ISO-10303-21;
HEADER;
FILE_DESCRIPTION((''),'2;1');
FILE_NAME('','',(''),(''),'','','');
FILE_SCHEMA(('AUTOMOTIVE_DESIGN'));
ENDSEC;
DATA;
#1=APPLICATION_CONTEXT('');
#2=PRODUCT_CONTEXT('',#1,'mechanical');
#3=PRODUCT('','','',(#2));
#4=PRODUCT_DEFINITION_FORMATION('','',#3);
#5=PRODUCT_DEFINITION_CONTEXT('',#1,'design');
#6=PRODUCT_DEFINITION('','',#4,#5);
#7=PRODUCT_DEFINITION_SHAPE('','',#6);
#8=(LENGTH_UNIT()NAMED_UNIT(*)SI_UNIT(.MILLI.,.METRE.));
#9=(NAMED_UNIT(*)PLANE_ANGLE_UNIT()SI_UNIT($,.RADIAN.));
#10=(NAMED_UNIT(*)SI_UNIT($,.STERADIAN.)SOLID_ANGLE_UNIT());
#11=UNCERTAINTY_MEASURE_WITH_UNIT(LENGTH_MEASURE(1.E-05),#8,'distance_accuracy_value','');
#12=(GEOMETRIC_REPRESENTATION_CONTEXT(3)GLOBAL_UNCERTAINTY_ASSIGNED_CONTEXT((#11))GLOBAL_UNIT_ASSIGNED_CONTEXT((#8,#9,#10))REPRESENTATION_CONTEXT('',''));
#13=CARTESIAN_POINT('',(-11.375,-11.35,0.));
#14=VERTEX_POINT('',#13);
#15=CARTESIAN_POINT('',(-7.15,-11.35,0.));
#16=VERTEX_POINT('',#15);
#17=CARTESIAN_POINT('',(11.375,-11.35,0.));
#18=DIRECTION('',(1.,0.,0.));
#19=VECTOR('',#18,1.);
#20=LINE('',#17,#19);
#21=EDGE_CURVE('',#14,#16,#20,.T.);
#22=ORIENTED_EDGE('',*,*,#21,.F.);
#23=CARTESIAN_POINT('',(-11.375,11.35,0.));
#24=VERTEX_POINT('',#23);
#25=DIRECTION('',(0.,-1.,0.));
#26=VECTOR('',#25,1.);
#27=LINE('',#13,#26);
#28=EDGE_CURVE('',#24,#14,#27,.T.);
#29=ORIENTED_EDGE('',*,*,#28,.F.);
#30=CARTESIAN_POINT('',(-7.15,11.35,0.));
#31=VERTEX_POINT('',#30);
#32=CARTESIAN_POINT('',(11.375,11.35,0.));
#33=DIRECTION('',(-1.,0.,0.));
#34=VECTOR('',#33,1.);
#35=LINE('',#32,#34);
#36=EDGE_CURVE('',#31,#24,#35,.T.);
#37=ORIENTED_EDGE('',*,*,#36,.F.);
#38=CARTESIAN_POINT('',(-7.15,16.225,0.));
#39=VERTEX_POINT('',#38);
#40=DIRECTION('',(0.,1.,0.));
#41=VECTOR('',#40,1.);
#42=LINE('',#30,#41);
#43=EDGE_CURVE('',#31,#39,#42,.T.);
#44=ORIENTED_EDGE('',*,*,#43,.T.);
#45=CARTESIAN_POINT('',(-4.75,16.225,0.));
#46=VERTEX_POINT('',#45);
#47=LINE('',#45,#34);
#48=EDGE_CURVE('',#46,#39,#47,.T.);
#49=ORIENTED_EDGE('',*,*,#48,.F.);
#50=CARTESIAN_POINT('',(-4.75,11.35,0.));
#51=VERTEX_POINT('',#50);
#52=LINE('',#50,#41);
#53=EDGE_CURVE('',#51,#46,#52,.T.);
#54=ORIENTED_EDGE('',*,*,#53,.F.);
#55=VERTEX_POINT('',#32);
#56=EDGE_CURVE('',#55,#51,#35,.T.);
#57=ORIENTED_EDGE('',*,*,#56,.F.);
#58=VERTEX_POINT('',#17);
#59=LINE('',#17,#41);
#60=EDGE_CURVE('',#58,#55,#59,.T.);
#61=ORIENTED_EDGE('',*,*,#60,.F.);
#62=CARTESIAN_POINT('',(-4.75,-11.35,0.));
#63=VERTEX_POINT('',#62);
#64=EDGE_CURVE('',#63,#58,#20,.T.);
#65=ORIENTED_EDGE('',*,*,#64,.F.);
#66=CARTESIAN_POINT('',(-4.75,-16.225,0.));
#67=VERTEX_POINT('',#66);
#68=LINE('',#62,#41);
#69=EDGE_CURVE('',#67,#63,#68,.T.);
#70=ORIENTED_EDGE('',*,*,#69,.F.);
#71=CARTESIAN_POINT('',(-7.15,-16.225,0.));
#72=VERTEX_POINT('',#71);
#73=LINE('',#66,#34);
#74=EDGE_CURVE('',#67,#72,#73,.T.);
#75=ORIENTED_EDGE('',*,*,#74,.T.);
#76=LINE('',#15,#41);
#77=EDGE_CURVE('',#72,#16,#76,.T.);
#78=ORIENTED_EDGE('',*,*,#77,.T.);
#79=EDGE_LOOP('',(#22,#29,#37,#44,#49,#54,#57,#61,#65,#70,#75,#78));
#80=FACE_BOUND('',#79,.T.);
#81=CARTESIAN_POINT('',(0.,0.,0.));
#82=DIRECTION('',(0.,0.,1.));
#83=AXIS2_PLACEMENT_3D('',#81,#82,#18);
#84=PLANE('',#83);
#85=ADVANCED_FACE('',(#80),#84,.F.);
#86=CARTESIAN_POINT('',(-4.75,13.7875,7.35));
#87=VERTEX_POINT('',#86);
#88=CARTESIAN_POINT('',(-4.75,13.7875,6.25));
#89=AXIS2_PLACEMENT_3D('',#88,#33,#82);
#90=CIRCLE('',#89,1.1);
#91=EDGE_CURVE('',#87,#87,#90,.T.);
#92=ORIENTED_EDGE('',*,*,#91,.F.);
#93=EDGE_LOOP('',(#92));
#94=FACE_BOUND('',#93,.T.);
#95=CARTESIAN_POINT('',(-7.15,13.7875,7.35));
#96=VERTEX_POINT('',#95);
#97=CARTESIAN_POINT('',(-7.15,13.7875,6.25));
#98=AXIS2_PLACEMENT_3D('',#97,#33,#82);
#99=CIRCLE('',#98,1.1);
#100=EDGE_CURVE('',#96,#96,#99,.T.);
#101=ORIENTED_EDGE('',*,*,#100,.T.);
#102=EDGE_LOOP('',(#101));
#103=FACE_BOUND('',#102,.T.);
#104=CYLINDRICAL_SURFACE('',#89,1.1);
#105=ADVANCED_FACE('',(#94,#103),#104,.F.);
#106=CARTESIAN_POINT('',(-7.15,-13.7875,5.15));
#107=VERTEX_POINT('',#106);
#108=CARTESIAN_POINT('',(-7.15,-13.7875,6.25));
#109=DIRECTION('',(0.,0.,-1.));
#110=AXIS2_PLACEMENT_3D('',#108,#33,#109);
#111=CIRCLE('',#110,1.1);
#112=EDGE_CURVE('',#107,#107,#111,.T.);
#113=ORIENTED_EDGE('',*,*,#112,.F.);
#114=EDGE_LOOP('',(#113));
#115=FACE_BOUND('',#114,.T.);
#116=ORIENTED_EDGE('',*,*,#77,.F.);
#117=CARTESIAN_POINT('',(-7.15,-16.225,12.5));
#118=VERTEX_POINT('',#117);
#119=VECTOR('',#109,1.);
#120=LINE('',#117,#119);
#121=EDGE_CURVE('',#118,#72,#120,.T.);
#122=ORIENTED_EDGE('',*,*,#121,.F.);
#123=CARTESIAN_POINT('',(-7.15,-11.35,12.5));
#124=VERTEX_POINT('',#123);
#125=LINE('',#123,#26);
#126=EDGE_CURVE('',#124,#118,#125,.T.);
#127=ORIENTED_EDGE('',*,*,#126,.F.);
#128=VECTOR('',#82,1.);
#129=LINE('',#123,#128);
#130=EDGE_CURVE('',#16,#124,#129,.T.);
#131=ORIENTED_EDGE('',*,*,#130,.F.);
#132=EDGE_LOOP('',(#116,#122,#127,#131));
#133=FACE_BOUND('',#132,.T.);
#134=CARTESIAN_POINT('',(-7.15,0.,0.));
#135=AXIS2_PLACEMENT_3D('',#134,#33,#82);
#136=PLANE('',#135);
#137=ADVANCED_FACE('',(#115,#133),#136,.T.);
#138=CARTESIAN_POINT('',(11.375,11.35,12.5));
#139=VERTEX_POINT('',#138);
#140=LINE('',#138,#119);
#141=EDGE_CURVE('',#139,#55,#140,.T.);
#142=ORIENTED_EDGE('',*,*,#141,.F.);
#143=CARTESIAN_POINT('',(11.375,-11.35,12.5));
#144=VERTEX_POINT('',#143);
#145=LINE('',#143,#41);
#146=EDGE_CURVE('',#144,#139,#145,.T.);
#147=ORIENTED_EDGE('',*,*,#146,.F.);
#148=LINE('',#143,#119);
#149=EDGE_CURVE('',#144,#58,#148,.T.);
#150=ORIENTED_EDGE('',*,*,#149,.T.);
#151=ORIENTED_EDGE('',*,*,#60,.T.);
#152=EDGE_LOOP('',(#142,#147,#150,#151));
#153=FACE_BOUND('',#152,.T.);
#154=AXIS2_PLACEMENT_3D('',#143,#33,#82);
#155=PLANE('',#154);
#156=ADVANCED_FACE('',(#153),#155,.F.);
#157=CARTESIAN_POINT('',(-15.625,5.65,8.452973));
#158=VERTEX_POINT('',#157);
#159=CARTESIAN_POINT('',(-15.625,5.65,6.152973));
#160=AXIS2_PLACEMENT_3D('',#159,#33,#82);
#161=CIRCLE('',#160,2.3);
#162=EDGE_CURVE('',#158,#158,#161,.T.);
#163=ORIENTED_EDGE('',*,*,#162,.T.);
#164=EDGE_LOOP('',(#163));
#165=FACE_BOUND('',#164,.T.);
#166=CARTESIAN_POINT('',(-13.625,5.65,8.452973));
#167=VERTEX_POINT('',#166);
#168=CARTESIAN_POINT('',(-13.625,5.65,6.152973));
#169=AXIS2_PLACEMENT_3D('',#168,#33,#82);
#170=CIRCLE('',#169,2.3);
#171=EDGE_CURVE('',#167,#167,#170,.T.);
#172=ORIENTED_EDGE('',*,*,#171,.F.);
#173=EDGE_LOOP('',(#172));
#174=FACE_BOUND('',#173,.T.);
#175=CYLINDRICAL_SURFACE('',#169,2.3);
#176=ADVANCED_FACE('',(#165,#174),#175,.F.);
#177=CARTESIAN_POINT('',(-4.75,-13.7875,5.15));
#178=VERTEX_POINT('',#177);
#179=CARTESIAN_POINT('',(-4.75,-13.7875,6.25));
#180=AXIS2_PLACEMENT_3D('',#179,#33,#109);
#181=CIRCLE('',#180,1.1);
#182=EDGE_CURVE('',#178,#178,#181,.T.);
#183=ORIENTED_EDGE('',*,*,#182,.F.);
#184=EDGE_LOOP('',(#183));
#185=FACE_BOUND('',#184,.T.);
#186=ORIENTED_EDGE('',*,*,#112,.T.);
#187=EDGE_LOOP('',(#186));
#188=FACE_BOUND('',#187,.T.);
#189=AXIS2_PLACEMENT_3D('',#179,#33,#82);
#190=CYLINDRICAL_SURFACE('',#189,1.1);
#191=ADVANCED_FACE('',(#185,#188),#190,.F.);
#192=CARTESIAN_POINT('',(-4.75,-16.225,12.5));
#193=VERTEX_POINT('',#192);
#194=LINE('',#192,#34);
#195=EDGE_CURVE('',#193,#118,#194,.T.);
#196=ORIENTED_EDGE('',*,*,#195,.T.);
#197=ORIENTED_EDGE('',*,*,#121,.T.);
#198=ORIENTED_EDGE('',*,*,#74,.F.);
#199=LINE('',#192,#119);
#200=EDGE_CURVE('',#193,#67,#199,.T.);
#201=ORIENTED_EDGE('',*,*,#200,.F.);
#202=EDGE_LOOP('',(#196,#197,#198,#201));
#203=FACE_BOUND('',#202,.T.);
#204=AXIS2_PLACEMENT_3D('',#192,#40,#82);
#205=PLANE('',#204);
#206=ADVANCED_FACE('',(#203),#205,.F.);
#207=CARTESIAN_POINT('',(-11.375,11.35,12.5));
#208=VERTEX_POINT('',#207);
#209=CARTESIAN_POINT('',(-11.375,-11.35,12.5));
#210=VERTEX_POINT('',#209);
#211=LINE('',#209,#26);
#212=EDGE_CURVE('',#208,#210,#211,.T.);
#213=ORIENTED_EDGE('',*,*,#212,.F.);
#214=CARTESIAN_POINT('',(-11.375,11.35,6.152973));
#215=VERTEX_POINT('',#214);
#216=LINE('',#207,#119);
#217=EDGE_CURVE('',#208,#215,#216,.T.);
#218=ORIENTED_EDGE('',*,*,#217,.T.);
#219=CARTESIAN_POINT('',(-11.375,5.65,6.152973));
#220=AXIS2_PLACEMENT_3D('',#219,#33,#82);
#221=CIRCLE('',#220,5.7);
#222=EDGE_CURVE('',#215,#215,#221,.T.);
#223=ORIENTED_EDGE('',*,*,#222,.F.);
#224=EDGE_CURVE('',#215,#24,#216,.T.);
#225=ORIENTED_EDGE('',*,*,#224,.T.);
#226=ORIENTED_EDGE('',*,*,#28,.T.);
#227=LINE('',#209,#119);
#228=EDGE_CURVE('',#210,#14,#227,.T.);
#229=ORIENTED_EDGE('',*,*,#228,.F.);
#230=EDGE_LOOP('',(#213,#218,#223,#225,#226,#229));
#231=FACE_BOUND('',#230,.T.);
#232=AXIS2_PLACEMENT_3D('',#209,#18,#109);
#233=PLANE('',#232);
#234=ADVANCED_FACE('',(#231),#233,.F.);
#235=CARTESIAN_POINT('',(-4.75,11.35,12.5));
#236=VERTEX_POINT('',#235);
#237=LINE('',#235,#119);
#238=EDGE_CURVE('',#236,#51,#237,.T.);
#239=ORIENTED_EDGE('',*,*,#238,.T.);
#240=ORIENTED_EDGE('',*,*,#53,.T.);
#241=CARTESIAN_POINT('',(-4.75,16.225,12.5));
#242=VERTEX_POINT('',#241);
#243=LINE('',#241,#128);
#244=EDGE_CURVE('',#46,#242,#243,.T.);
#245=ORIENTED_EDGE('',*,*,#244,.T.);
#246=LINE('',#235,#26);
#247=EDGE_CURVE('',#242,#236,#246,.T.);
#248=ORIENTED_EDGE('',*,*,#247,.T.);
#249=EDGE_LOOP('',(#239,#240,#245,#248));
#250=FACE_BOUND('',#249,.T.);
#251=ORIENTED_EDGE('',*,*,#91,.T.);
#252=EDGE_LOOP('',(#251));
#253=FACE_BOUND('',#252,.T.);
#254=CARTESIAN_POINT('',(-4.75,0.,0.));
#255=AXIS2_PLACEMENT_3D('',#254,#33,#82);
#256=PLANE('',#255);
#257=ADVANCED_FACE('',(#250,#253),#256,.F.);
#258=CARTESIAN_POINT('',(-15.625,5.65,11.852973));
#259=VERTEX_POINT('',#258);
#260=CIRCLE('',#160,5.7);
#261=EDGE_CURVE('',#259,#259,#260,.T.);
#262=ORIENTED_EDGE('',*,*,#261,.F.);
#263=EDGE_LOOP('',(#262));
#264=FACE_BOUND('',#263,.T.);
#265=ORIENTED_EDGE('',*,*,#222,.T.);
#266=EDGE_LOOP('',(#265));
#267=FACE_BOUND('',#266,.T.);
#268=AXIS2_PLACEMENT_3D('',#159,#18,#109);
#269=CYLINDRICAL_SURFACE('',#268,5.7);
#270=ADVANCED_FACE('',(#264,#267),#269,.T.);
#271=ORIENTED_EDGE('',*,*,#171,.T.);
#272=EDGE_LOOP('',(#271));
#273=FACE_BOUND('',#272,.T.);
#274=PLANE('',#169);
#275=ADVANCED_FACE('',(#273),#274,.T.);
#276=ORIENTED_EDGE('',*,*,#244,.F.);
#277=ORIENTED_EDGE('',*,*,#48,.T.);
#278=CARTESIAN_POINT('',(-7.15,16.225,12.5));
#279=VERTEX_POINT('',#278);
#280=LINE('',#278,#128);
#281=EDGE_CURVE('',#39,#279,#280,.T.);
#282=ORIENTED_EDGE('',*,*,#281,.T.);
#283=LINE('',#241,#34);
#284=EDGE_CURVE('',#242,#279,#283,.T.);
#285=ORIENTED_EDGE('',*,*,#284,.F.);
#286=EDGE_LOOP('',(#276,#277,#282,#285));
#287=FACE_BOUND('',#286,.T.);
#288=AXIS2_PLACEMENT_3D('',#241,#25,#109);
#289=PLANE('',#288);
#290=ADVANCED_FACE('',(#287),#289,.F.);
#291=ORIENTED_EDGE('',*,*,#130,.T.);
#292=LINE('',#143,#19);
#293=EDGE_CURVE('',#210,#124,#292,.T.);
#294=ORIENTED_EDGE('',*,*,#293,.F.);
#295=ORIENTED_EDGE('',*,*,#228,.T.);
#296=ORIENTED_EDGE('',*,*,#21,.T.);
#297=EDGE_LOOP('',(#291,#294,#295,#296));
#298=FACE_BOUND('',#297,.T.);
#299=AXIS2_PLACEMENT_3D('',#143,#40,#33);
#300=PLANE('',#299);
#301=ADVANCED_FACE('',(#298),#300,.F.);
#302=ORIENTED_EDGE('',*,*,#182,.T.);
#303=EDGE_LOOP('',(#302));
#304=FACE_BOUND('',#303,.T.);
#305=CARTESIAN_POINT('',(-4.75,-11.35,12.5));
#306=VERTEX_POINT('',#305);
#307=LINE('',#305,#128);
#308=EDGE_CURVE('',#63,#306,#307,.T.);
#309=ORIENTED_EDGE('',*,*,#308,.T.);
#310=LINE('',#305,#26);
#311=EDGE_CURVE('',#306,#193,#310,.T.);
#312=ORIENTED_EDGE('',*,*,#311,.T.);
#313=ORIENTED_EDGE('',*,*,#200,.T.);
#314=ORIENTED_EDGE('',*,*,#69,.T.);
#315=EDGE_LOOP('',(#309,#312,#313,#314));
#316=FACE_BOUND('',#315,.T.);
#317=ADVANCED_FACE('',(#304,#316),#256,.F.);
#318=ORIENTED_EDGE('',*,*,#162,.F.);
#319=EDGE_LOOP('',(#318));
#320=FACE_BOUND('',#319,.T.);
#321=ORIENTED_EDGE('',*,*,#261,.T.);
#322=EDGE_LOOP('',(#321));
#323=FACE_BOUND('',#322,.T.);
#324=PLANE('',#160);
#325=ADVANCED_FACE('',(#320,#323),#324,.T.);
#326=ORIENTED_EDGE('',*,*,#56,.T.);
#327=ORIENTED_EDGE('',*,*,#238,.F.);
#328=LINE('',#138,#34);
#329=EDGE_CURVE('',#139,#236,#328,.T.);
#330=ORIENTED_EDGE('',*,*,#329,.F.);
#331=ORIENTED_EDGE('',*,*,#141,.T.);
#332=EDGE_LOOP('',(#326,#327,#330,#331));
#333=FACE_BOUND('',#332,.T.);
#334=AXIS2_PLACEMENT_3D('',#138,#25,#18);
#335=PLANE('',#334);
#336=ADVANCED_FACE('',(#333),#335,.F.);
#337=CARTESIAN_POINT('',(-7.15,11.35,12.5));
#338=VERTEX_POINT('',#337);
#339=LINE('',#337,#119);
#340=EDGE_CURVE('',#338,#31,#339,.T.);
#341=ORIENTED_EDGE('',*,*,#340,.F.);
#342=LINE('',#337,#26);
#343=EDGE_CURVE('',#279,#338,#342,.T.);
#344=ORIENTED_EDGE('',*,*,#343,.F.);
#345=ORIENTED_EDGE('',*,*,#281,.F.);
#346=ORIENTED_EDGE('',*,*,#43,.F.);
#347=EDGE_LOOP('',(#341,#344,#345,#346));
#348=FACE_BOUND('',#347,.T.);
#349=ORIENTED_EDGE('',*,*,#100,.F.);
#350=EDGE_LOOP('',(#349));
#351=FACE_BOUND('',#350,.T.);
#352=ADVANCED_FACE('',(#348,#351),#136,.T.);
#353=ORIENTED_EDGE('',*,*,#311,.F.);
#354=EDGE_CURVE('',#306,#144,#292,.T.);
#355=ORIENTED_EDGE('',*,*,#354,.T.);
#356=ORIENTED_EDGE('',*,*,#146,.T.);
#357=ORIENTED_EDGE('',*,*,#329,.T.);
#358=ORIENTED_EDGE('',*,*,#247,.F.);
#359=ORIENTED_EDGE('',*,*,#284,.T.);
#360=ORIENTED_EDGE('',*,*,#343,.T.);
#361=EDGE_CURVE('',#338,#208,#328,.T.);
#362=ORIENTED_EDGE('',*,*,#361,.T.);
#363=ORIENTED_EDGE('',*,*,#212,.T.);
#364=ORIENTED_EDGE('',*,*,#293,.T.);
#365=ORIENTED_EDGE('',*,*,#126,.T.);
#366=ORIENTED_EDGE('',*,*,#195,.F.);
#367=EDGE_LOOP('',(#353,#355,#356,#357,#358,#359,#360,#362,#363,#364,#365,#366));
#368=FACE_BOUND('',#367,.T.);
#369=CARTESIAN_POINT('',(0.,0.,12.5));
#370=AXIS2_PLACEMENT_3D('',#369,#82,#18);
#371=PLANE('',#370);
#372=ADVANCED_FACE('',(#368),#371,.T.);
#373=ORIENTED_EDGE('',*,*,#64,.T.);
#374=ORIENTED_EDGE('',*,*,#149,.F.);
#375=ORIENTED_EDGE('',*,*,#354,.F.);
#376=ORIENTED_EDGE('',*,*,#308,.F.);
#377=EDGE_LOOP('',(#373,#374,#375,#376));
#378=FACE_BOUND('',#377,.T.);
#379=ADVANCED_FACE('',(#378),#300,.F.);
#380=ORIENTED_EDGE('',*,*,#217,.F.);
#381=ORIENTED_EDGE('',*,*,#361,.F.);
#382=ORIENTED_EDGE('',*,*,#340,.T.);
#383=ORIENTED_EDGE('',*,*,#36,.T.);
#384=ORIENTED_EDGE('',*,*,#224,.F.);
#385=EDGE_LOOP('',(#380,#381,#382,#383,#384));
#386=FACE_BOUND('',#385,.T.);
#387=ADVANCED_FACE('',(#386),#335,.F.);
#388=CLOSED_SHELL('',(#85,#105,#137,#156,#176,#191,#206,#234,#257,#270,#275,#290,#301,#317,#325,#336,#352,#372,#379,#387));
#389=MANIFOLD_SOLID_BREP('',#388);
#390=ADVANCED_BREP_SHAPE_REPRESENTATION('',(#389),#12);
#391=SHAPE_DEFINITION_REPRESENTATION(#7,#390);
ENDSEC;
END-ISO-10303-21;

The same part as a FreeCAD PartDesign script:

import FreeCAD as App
import Part
import Sketcher


def add_polygon(sketch, points):
    """Adds a closed chain of lines whose ends are joined by coincident constraints."""
    first, n = sketch.GeometryCount, len(points)
    for a, b in zip(points, points[1:] + points[:1]):
        sketch.addGeometry(Part.LineSegment(App.Vector(*a, 0), App.Vector(*b, 0)), False)
    for i in range(n):
        sketch.addConstraint(Sketcher.Constraint("Coincident", first + i, 2, first + (i + 1) % n, 1))

doc = App.newDocument("Part")
body = doc.addObject("PartDesign::Body", "Body")

# Sketch on XY plane
sketch1 = body.newObject("Sketcher::SketchObject", "Sketch")
sketch1.AttachmentSupport = (doc.getObject("XY_Plane"), [""])
sketch1.MapMode = "FlatFace"
add_polygon(sketch1, [(-11, 11), (-11, -11), (11, -11), (11, 11)])  # lines 0-3
sketch1.addConstraint(Sketcher.Constraint("Vertical", 0))
sketch1.addConstraint(Sketcher.Constraint("Horizontal", 1))
sketch1.addConstraint(Sketcher.Constraint("Vertical", 2))
sketch1.addConstraint(Sketcher.Constraint("Horizontal", 3))
sketch1.addConstraint(Sketcher.Constraint("Symmetric", 0, 2, 2, 2, -1, 1))
sketch1.addConstraint(Sketcher.Constraint("DistanceY", 0, 2, 0, 1, 22.7))
sketch1.addConstraint(Sketcher.Constraint("DistanceX", 1, 1, 1, 2, 22.75))
pad1 = body.newObject("PartDesign::Pad", "Pad")
pad1.Profile = sketch1
pad1.Length = 12.5

# Sketch on YZ plane
sketch2 = body.newObject("Sketcher::SketchObject", "Sketch001")
sketch2.AttachmentSupport = (doc.getObject("YZ_Plane"), [""])
sketch2.MapMode = "FlatFace"
sketch2.AttachmentOffset = App.Placement(App.Vector(0, 0, -11.375), App.Rotation())
sketch2.addGeometry(Part.Circle(App.Vector(6, 6, 0), App.Vector(0, 0, 1), 6), False)
sketch2.addConstraint(Sketcher.Constraint("Diameter", 0, 11.4))
sketch2.addConstraint(Sketcher.Constraint("DistanceX", -1, 1, 0, 3, 5.65))
sketch2.addConstraint(Sketcher.Constraint("DistanceY", -1, 1, 0, 3, 6.152973))
pad2 = body.newObject("PartDesign::Pad", "Pad001")
pad2.Profile = sketch2
pad2.Length = 4.25
pad2.Reversed = True

# Sketch on YZ plane
sketch3 = body.newObject("Sketcher::SketchObject", "Sketch002")
sketch3.AttachmentSupport = (doc.getObject("YZ_Plane"), [""])
sketch3.MapMode = "FlatFace"
sketch3.AttachmentOffset = App.Placement(App.Vector(0, 0, -15.625), App.Rotation())
sketch3.addGeometry(Part.Circle(App.Vector(5.7, 6.2, 0), App.Vector(0, 0, 1), 2.3), False)
sketch3.addConstraint(Sketcher.Constraint("Diameter", 0, 4.6))
sketch3.addConstraint(Sketcher.Constraint("DistanceX", -1, 1, 0, 3, 5.65))
sketch3.addConstraint(Sketcher.Constraint("DistanceY", -1, 1, 0, 3, 6.152973))
pocket1 = body.newObject("PartDesign::Pocket", "Pocket")
pocket1.Profile = sketch3
pocket1.Length = 2
pocket1.Reversed = True

# Sketch on YZ plane
sketch4 = body.newObject("Sketcher::SketchObject", "Sketch003")
sketch4.AttachmentSupport = (doc.getObject("YZ_Plane"), [""])
sketch4.MapMode = "FlatFace"
sketch4.AttachmentOffset = App.Placement(App.Vector(0, 0, -7.15), App.Rotation())
add_polygon(sketch4, [(16.2, 12.5), (11.3, 12.5), (11.3, 0), (16.2, 0)])  # lines 0-3
add_polygon(sketch4, [(-11.3, 12.5), (-16.2, 12.5), (-16.2, 0), (-11.3, 0)])  # lines 4-7
sketch4.addConstraint(Sketcher.Constraint("Horizontal", 0))
sketch4.addConstraint(Sketcher.Constraint("Vertical", 1))
sketch4.addConstraint(Sketcher.Constraint("Horizontal", 2))
sketch4.addConstraint(Sketcher.Constraint("Vertical", 3))
sketch4.addConstraint(Sketcher.Constraint("Horizontal", 4))
sketch4.addConstraint(Sketcher.Constraint("Vertical", 5))
sketch4.addConstraint(Sketcher.Constraint("Horizontal", 6))
sketch4.addConstraint(Sketcher.Constraint("Vertical", 7))
sketch4.addConstraint(Sketcher.Constraint("Symmetric", 2, 2, 5, 2, -1, 1))
sketch4.addConstraint(Sketcher.Constraint("Symmetric", 1, 2, 6, 2, -2))
sketch4.addConstraint(Sketcher.Constraint("Horizontal", 3, 2, 4, 2))
sketch4.addConstraint(Sketcher.Constraint("DistanceY", 1, 2, 1, 1, 12.5))
sketch4.addConstraint(Sketcher.Constraint("DistanceX", 6, 2, 1, 2, 22.7))
sketch4.addConstraint(Sketcher.Constraint("DistanceX", 0, 2, 0, 1, 4.875))
pad3 = body.newObject("PartDesign::Pad", "Pad002")
pad3.Profile = sketch4
pad3.Length = 2.4

# Sketch on YZ plane
sketch5 = body.newObject("Sketcher::SketchObject", "Sketch004")
sketch5.AttachmentSupport = (doc.getObject("YZ_Plane"), [""])
sketch5.MapMode = "FlatFace"
sketch5.AttachmentOffset = App.Placement(App.Vector(0, 0, -7.15), App.Rotation())
sketch5.addGeometry(Part.Circle(App.Vector(13.8, 6.2, 0), App.Vector(0, 0, 1), 1.1), False)
sketch5.addGeometry(Part.Circle(App.Vector(-13.8, 6.2, 0), App.Vector(0, 0, 1), 1.1), False)
sketch5.addConstraint(Sketcher.Constraint("Equal", 0, 1))
sketch5.addConstraint(Sketcher.Constraint("Symmetric", 0, 3, 1, 3, -2))
sketch5.addConstraint(Sketcher.Constraint("Diameter", 0, 2.2))
sketch5.addConstraint(Sketcher.Constraint("DistanceY", -1, 1, 0, 3, 6.25))
sketch5.addConstraint(Sketcher.Constraint("DistanceX", 1, 3, 0, 3, 27.575))
pocket2 = body.newObject("PartDesign::Pocket", "Pocket001")
pocket2.Profile = sketch5
pocket2.Length = 2.4
pocket2.Reversed = True

doc.recompute()
